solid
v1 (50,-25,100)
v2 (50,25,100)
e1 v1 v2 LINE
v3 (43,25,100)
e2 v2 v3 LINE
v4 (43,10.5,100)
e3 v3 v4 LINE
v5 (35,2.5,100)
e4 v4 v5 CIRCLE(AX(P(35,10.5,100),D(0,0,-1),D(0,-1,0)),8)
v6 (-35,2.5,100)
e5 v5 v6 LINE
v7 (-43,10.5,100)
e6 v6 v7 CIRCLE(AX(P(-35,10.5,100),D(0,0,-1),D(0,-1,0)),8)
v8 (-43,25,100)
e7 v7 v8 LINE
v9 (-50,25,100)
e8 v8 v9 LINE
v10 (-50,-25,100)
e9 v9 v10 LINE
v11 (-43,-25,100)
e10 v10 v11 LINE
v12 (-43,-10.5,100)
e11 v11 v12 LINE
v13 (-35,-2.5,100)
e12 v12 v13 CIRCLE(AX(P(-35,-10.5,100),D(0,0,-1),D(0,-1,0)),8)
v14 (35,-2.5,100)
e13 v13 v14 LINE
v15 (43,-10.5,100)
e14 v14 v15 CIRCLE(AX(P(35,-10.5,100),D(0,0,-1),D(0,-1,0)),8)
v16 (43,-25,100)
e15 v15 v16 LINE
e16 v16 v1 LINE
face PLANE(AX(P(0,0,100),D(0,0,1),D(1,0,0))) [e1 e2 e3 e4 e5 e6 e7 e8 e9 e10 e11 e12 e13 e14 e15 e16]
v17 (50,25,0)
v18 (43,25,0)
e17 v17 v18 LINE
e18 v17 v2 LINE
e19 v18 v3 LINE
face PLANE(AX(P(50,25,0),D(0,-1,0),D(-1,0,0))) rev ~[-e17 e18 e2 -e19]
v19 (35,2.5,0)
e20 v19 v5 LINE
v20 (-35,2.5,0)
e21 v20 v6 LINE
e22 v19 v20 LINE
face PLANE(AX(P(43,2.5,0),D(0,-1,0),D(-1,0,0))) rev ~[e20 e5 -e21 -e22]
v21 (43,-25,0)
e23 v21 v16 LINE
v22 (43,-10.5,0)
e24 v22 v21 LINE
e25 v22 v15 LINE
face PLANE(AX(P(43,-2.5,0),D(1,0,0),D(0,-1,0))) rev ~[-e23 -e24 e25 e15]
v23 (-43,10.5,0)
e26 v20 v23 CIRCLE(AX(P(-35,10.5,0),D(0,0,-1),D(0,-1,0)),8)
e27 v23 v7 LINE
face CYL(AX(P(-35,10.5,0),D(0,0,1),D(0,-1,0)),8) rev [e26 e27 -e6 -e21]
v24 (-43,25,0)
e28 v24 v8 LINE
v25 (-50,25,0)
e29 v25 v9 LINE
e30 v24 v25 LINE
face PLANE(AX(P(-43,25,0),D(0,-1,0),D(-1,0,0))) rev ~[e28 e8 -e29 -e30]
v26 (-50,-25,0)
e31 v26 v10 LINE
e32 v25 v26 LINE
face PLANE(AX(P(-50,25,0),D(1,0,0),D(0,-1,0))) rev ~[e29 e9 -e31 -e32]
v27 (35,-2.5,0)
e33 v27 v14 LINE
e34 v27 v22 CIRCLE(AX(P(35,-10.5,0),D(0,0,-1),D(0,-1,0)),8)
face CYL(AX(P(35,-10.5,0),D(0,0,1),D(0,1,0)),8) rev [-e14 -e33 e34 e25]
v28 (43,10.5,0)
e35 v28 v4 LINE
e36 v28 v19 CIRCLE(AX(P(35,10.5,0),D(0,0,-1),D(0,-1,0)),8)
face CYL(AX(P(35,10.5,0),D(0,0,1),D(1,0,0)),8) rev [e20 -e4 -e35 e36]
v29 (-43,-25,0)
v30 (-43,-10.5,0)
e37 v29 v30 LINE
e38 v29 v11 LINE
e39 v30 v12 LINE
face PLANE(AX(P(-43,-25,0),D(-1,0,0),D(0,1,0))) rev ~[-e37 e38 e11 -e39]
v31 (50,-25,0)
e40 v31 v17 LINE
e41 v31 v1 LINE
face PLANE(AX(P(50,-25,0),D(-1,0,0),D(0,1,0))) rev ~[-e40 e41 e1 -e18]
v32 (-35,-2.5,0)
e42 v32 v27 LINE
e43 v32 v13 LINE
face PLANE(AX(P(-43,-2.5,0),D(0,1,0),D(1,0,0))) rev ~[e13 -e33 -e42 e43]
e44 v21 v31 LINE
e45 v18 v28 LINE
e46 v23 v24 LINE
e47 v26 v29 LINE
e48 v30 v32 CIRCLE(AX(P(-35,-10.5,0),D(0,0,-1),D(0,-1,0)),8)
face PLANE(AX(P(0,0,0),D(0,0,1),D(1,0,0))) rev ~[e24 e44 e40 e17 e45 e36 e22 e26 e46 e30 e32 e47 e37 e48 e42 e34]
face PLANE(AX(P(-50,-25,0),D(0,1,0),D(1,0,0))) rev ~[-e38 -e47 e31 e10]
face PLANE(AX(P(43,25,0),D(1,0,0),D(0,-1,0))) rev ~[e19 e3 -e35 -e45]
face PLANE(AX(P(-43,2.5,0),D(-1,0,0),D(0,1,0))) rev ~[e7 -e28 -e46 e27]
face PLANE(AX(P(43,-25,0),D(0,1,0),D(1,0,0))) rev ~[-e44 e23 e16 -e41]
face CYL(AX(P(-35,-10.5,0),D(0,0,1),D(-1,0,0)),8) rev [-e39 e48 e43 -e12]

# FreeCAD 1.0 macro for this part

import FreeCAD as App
import Part
import Sketcher


def edges_at(feature, points):
    """Names of the edges that pass closest to the given points."""
    edges = feature.Shape.Edges
    near = lambda p: min(range(len(edges)), key=lambda i: edges[i].distToShape(Part.Vertex(*p))[0])
    return sorted({f"Edge{near(p) + 1}" for p in points})

doc = App.newDocument("Part")
body = doc.addObject("PartDesign::Body", "Body")

sketch1 = doc.addObject("Sketcher::SketchObject", "Sketch")
body.addObject(sketch1)
sketch1.AttachmentSupport = (doc.XY_Plane, [""])
sketch1.MapMode = "FlatFace"
sketch1.addGeometry([
    Part.LineSegment(App.Vector(-43, 25, 0), App.Vector(-50, 25, 0)),
    Part.LineSegment(App.Vector(-50, 25, 0), App.Vector(-50, -25, 0)),
    Part.LineSegment(App.Vector(-50, -25, 0), App.Vector(-43, -25, 0)),
    Part.LineSegment(App.Vector(-43, -25, 0), App.Vector(-43, -2, 0)),
    Part.LineSegment(App.Vector(-43, -2, 0), App.Vector(43, -2, 0)),
    Part.LineSegment(App.Vector(43, -2, 0), App.Vector(43, -25, 0)),
    Part.LineSegment(App.Vector(43, -25, 0), App.Vector(50, -25, 0)),
    Part.LineSegment(App.Vector(50, -25, 0), App.Vector(50, 25, 0)),
    Part.LineSegment(App.Vector(50, 25, 0), App.Vector(43, 25, 0)),
    Part.LineSegment(App.Vector(43, 25, 0), App.Vector(43, 2, 0)),
    Part.LineSegment(App.Vector(43, 2, 0), App.Vector(-43, 2, 0)),
    Part.LineSegment(App.Vector(-43, 2, 0), App.Vector(-43, 25, 0)),
], False)
sketch1.addConstraint([
    Sketcher.Constraint("Coincident", 0, 2, 1, 1),
    Sketcher.Constraint("Coincident", 1, 2, 2, 1),
    Sketcher.Constraint("Coincident", 2, 2, 3, 1),
    Sketcher.Constraint("Coincident", 3, 2, 4, 1),
    Sketcher.Constraint("Coincident", 4, 2, 5, 1),
    Sketcher.Constraint("Coincident", 5, 2, 6, 1),
    Sketcher.Constraint("Coincident", 6, 2, 7, 1),
    Sketcher.Constraint("Coincident", 7, 2, 8, 1),
    Sketcher.Constraint("Coincident", 8, 2, 9, 1),
    Sketcher.Constraint("Coincident", 9, 2, 10, 1),
    Sketcher.Constraint("Coincident", 10, 2, 11, 1),
    Sketcher.Constraint("Coincident", 11, 2, 0, 1),
    Sketcher.Constraint("Horizontal", 0),
    Sketcher.Constraint("Vertical", 1),
    Sketcher.Constraint("Horizontal", 2),
    Sketcher.Constraint("Vertical", 3),
    Sketcher.Constraint("Horizontal", 4),
    Sketcher.Constraint("Vertical", 5),
    Sketcher.Constraint("Horizontal", 6),
    Sketcher.Constraint("Vertical", 7),
    Sketcher.Constraint("Horizontal", 8),
    Sketcher.Constraint("Vertical", 9),
    Sketcher.Constraint("Horizontal", 10),
    Sketcher.Constraint("Vertical", 11),
    Sketcher.Constraint("Symmetric", 0, 2, 6, 2, -1, 1),
    Sketcher.Constraint("Symmetric", 2, 2, 8, 2, -1, 1),
    Sketcher.Constraint("Symmetric", 4, 2, 10, 2, -1, 1),
    Sketcher.Constraint("Symmetric", 2, 2, 5, 2, -2),
    Sketcher.Constraint("DistanceX", 0, 2, 0, 1, 7.0),
    Sketcher.Constraint("DistanceX", 4, 1, 4, 2, 86.0),
    Sketcher.Constraint("DistanceY", 1, 2, 1, 1, 50.0),
    Sketcher.Constraint("DistanceY", 3, 1, 3, 2, 22.5),
])
pad1 = doc.addObject("PartDesign::Pad", "Pad")
body.addObject(pad1)
pad1.Profile = sketch1
pad1.Length = 100
doc.recompute()

fillet = doc.addObject("PartDesign::Fillet", "Fillet")
body.addObject(fillet)
fillet.Base = (pad1, edges_at(pad1, [
    (43, -2.5, 50),
    (-43, -2.5, 50),
    (-43, 2.5, 50),
    (43, 2.5, 50),
]))
fillet.Radius = 8

doc.recompute()
